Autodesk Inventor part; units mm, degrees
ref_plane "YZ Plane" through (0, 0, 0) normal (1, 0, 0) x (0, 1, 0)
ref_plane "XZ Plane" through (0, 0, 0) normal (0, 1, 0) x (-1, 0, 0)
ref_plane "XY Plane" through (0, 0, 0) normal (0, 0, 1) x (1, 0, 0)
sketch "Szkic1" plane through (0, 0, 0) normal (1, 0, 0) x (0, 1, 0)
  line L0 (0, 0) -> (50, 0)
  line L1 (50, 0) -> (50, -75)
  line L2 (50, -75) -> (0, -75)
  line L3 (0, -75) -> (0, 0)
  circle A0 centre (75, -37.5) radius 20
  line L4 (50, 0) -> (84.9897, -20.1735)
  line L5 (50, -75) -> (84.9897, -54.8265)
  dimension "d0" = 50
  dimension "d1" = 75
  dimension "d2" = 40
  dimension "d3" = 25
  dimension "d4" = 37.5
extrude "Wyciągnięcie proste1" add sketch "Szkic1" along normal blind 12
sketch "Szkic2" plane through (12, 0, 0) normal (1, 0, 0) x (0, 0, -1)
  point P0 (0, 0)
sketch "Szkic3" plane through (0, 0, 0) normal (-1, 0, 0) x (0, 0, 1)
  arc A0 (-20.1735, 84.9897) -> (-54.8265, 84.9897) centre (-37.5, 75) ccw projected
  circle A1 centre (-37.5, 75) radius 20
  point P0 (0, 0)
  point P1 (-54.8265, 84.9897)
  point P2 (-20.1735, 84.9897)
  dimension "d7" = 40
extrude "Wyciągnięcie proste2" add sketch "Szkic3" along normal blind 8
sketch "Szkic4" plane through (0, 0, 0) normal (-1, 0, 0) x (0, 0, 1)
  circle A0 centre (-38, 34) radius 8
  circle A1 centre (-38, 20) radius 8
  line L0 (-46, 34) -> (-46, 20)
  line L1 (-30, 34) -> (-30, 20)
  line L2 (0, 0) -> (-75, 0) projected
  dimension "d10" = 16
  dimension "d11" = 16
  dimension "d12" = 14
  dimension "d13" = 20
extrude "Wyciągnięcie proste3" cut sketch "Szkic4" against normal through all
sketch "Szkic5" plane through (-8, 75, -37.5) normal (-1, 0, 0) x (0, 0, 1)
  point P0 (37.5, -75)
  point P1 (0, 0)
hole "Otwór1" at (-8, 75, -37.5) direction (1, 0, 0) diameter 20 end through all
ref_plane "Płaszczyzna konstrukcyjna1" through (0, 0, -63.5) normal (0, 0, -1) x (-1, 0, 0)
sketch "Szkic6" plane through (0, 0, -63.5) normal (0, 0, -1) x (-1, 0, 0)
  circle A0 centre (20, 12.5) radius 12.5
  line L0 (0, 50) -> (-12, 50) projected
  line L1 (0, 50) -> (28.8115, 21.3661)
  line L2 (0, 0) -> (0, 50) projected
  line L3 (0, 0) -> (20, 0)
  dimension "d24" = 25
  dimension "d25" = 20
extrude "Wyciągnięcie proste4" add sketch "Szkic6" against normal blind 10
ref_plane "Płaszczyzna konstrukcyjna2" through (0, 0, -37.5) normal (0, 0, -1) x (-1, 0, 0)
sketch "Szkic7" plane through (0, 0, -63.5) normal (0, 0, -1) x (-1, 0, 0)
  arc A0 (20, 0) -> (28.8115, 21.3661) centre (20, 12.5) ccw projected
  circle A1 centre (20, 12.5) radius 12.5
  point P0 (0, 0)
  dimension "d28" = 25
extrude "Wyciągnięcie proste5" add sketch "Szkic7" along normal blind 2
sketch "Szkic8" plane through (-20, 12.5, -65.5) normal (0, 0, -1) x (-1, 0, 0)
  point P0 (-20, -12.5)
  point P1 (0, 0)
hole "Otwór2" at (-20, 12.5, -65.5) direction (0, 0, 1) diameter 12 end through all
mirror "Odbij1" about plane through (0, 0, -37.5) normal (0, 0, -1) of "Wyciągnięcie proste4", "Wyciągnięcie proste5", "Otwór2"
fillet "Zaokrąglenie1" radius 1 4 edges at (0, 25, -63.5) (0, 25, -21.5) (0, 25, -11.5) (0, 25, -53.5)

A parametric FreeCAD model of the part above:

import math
import FreeCAD as App
import Part
import Sketcher


def edges_at(feature, points):
    """Names of the edges that pass closest to the given points."""
    edges = feature.Shape.Edges
    near = lambda p: min(range(len(edges)), key=lambda i: edges[i].distToShape(Part.Vertex(*p))[0])
    return sorted({f"Edge{near(p) + 1}" for p in points})

doc = App.newDocument("Part")
params = doc.addObject("Spreadsheet::Sheet", "Params")
for row, (alias, value) in enumerate([
    ("sketch1_radius", "20 mm"),
    ("sketch1_width", "50 mm"),
    ("sketch1_height", "75 mm"),
    ("pad1_length", "12 mm"),
    ("sketch2_diameter", "40 mm"),
    ("pad2_length", "8 mm"),
    ("sketch3_radius", "8 mm"),
    ("sketch3_width", "14 mm"),
    ("sketch4_diameter", "20 mm"),
    ("hole_diameter", "20 mm"),
    ("sketch5_radius", "12.5 mm"),
    ("sketch5_width", "20 mm"),
    ("sketch5_height", "50 mm"),
    ("pad3_length", "10 mm"),
    ("sketch6_radius", "12.5 mm"),
    ("pad4_length", "2 mm"),
    ("sketch7_diameter", "12 mm"),
    ("hole2_diameter", "12 mm"),
    ("fillet_radius", "1 mm"),
], start=1):
    params.set(f"A{row}", alias)
    params.set(f"B{row}", "=" + value)
    params.setAlias(f"B{row}", alias)

body = doc.addObject("PartDesign::Body", "Body")

# Sketch on YZ plane
sketch1 = body.newObject("Sketcher::SketchObject", "Sketch")
sketch1.AttachmentSupport = (doc.getObject("YZ_Plane"), [""])
sketch1.MapMode = "FlatFace"
sketch1.addGeometry(Part.LineSegment(App.Vector(50, 0, 0), App.Vector(0, 0, 0)), False)
sketch1.addGeometry(Part.LineSegment(App.Vector(0, 0, 0), App.Vector(0, -75, 0)), False)
sketch1.addGeometry(Part.LineSegment(App.Vector(0, -75, 0), App.Vector(50, -75, 0)), False)
sketch1.addGeometry(Part.LineSegment(App.Vector(50, -75, 0), App.Vector(85, -55, 0)), False)
sketch1.addGeometry(Part.ArcOfCircle(Part.Circle(App.Vector(75, -38, 0), App.Vector(0, 0, 1), 20), math.radians(-60), math.radians(60)), False)
sketch1.addGeometry(Part.LineSegment(App.Vector(85, -20, 0), App.Vector(50, 0, 0)), False)
sketch1.addConstraint(Sketcher.Constraint("Coincident", 0, 2, 1, 1))
sketch1.addConstraint(Sketcher.Constraint("Coincident", 1, 2, 2, 1))
sketch1.addConstraint(Sketcher.Constraint("Coincident", 2, 2, 3, 1))
sketch1.addConstraint(Sketcher.Constraint("Tangent", 3, 2, 4, 1))
sketch1.addConstraint(Sketcher.Constraint("Tangent", 4, 2, 5, 1))
sketch1.addConstraint(Sketcher.Constraint("Coincident", 5, 2, 0, 1))
sketch1.addConstraint(Sketcher.Constraint("Horizontal", 0))
sketch1.addConstraint(Sketcher.Constraint("Vertical", 1))
sketch1.addConstraint(Sketcher.Constraint("Horizontal", 2))
sketch1.addConstraint(Sketcher.Constraint("Coincident", 0, 2, -1, 1))
sketch1.addConstraint(Sketcher.Constraint("Vertical", 3, 2, 4, 2))
sketch1.addConstraint(Sketcher.Constraint("Vertical", 2, 2, 5, 2))
sketch1.addConstraint(Sketcher.Constraint("Radius", 4, 20.0))
sketch1.addConstraint(Sketcher.Constraint("DistanceX", 0, 2, 0, 1, 50.0))
sketch1.addConstraint(Sketcher.Constraint("DistanceY", 1, 2, 1, 1, 75.0))
sketch1.addConstraint(Sketcher.Constraint("DistanceX", -1, 1, 4, 3, 75.0))
sketch1.setExpression("Constraints[12]", "Params.sketch1_radius")
sketch1.setExpression("Constraints[13]", "Params.sketch1_width")
sketch1.setExpression("Constraints[14]", "Params.sketch1_height")
pad1 = body.newObject("PartDesign::Pad", "Pad")
pad1.Profile = sketch1
pad1.setExpression("Length", "Params.pad1_length")

# Sketch on YZ plane
sketch2 = body.newObject("Sketcher::SketchObject", "Sketch001")
sketch2.AttachmentSupport = (doc.getObject("YZ_Plane"), [""])
sketch2.MapMode = "FlatFace"
sketch2.addGeometry(Part.Circle(App.Vector(75, -38, 0), App.Vector(0, 0, 1), 20), False)
sketch2.addConstraint(Sketcher.Constraint("Diameter", 0, 40.0))
sketch2.addConstraint(Sketcher.Constraint("DistanceX", -1, 1, 0, 3, 75.0))
sketch2.addConstraint(Sketcher.Constraint("DistanceY", 0, 3, -1, 1, 37.5))
sketch2.setExpression("Constraints[0]", "Params.sketch2_diameter")
pad2 = body.newObject("PartDesign::Pad", "Pad001")
pad2.Profile = sketch2
pad2.setExpression("Length", "Params.pad2_length")
pad2.Reversed = True

# Sketch on YZ plane
sketch3 = body.newObject("Sketcher::SketchObject", "Sketch002")
sketch3.AttachmentSupport = (doc.getObject("YZ_Plane"), [""])
sketch3.MapMode = "FlatFace"
sketch3.addGeometry(Part.ArcOfCircle(Part.Circle(App.Vector(34, -38, 0), App.Vector(0, 0, 1), 8), math.radians(-90), math.radians(90)), False)
sketch3.addGeometry(Part.LineSegment(App.Vector(34, -46, 0), App.Vector(20, -46, 0)), False)
sketch3.addGeometry(Part.ArcOfCircle(Part.Circle(App.Vector(20, -38, 0), App.Vector(0, 0, 1), 8), math.radians(90), math.radians(270)), False)
sketch3.addGeometry(Part.LineSegment(App.Vector(20, -30, 0), App.Vector(34, -30, 0)), False)
sketch3.addConstraint(Sketcher.Constraint("Tangent", 0, 1, 1, 1))
sketch3.addConstraint(Sketcher.Constraint("Tangent", 1, 2, 2, 2))
sketch3.addConstraint(Sketcher.Constraint("Tangent", 2, 1, 3, 1))
sketch3.addConstraint(Sketcher.Constraint("Tangent", 3, 2, 0, 2))
sketch3.addConstraint(Sketcher.Constraint("Horizontal", 1))
sketch3.addConstraint(Sketcher.Constraint("Horizontal", 3))
sketch3.addConstraint(Sketcher.Constraint("Radius", 0, 8.0))
sketch3.addConstraint(Sketcher.Constraint("DistanceX", 1, 2, 1, 1, 14.0))
sketch3.addConstraint(Sketcher.Constraint("DistanceX", -1, 1, 2, 3, 20.0))
sketch3.addConstraint(Sketcher.Constraint("DistanceY", 0, 3, -1, 1, 38.0))
sketch3.setExpression("Constraints[6]", "Params.sketch3_radius")
sketch3.setExpression("Constraints[7]", "Params.sketch3_width")
pocket1 = body.newObject("PartDesign::Pocket", "Pocket")
pocket1.Profile = sketch3
pocket1.Type = "ThroughAll"
pocket1.Reversed = True

# Sketch on YZ plane
sketch4 = body.newObject("Sketcher::SketchObject", "Sketch003")
sketch4.AttachmentSupport = (doc.getObject("YZ_Plane"), [""])
sketch4.MapMode = "FlatFace"
sketch4.AttachmentOffset = App.Placement(App.Vector(0, 0, -8), App.Rotation())
sketch4.addGeometry(Part.Circle(App.Vector(75, -38, 0), App.Vector(0, 0, 1), 10), False)
sketch4.addConstraint(Sketcher.Constraint("Diameter", 0, 20.0))
sketch4.addConstraint(Sketcher.Constraint("DistanceX", -1, 1, 0, 3, 75.0))
sketch4.addConstraint(Sketcher.Constraint("DistanceY", 0, 3, -1, 1, 37.5))
sketch4.setExpression("Constraints[0]", "Params.sketch4_diameter")
doc.recompute()
hole = body.newObject("PartDesign::Hole", "Hole")
hole.Profile = sketch4
hole.ThreadType = "None"
hole.setExpression("Diameter", "Params.hole_diameter")
hole.DepthType = "ThroughAll"
hole.Reversed = True

# Sketch on XY plane
sketch5 = body.newObject("Sketcher::SketchObject", "Sketch004")
sketch5.AttachmentSupport = (doc.getObject("XY_Plane"), [""])
sketch5.MapMode = "FlatFace"
sketch5.AttachmentOffset = App.Placement(App.Vector(0, 0, -63.5), App.Rotation())
sketch5.addGeometry(Part.ArcOfCircle(Part.Circle(App.Vector(-20, 12, 0), App.Vector(0, 0, 1), 12), math.radians(135), math.radians(270)), False)
sketch5.addGeometry(Part.LineSegment(App.Vector(-29, 21, 0), App.Vector(0, 50, 0)), False)
sketch5.addGeometry(Part.LineSegment(App.Vector(0, 50, 0), App.Vector(0, 0, 0)), False)
sketch5.addGeometry(Part.LineSegment(App.Vector(0, 0, 0), App.Vector(-20, 0, 0)), False)
sketch5.addConstraint(Sketcher.Constraint("Tangent", 0, 1, 1, 1))
sketch5.addConstraint(Sketcher.Constraint("Coincident", 1, 2, 2, 1))
sketch5.addConstraint(Sketcher.Constraint("Coincident", 2, 2, 3, 1))
sketch5.addConstraint(Sketcher.Constraint("Tangent", 3, 2, 0, 2))
sketch5.addConstraint(Sketcher.Constraint("Vertical", 2))
sketch5.addConstraint(Sketcher.Constraint("Horizontal", 3))
sketch5.addConstraint(Sketcher.Constraint("Coincident", 2, 2, -1, 1))
sketch5.addConstraint(Sketcher.Constraint("Radius", 0, 12.5))
sketch5.addConstraint(Sketcher.Constraint("DistanceX", 3, 2, 3, 1, 20.0))
sketch5.addConstraint(Sketcher.Constraint("DistanceY", 2, 2, 2, 1, 50.0))
sketch5.setExpression("Constraints[7]", "Params.sketch5_radius")
sketch5.setExpression("Constraints[8]", "Params.sketch5_width")
sketch5.setExpression("Constraints[9]", "Params.sketch5_height")
pad3 = body.newObject("PartDesign::Pad", "Pad002")
pad3.Profile = sketch5
pad3.setExpression("Length", "Params.pad3_length")

# Sketch on XY plane
sketch6 = body.newObject("Sketcher::SketchObject", "Sketch005")
sketch6.AttachmentSupport = (doc.getObject("XY_Plane"), [""])
sketch6.MapMode = "FlatFace"
sketch6.AttachmentOffset = App.Placement(App.Vector(0, 0, -63.5), App.Rotation())
sketch6.addGeometry(Part.ArcOfCircle(Part.Circle(App.Vector(-20, 12, 0), App.Vector(0, 0, 1), 12), math.radians(-90), math.radians(135)), False)
sketch6.addGeometry(Part.ArcOfCircle(Part.Circle(App.Vector(-20, 12, 0), App.Vector(0, 0, 1), 12), math.radians(135), math.radians(270)), False)
sketch6.addConstraint(Sketcher.Constraint("Tangent", 0, 1, 1, 2))
sketch6.addConstraint(Sketcher.Constraint("Coincident", 1, 1, 0, 2))
sketch6.addConstraint(Sketcher.Constraint("PointOnObject", 0, 1, -1))
sketch6.addConstraint(Sketcher.Constraint("Vertical", 1, 3, 0, 1))
sketch6.addConstraint(Sketcher.Constraint("Radius", 0, 12.5))
sketch6.addConstraint(Sketcher.Constraint("DistanceX", 0, 3, -1, 1, 20.0))
sketch6.addConstraint(Sketcher.Constraint("DistanceY", -1, 1, 1, 1, 21.366))
sketch6.setExpression("Constraints[4]", "Params.sketch6_radius")
pad4 = body.newObject("PartDesign::Pad", "Pad003")
pad4.Profile = sketch6
pad4.setExpression("Length", "Params.pad4_length")
pad4.Reversed = True

# Sketch on XY plane
sketch7 = body.newObject("Sketcher::SketchObject", "Sketch006")
sketch7.AttachmentSupport = (doc.getObject("XY_Plane"), [""])
sketch7.MapMode = "FlatFace"
sketch7.AttachmentOffset = App.Placement(App.Vector(0, 0, -65.5), App.Rotation())
sketch7.addGeometry(Part.Circle(App.Vector(-20, 12, 0), App.Vector(0, 0, 1), 6), False)
sketch7.addConstraint(Sketcher.Constraint("Diameter", 0, 12.0))
sketch7.addConstraint(Sketcher.Constraint("DistanceX", 0, 3, -1, 1, 20.0))
sketch7.addConstraint(Sketcher.Constraint("DistanceY", -1, 1, 0, 3, 12.5))
sketch7.setExpression("Constraints[0]", "Params.sketch7_diameter")
doc.recompute()
hole2 = body.newObject("PartDesign::Hole", "Hole001")
hole2.Profile = sketch7
hole2.ThreadType = "None"
hole2.setExpression("Diameter", "Params.hole2_diameter")
hole2.DepthType = "ThroughAll"
hole2.Reversed = True
doc.recompute()

datumplane = body.newObject("PartDesign::Plane", "DatumPlane")
datumplane.AttachmentSupport = (doc.getObject("XY_Plane"), [""])
datumplane.MapMode = "FlatFace"
datumplane.AttachmentOffset = App.Placement(App.Vector(0, 0, -37.5), App.Rotation())
mirrored = body.newObject("PartDesign::Mirrored", "Mirrored")
mirrored.Originals = [pad3, pad4, hole2]
mirrored.MirrorPlane = (datumplane, [""])
body.Tip = mirrored
doc.recompute()

fillet = body.newObject("PartDesign::Fillet", "Fillet")
fillet.Base = (mirrored, edges_at(mirrored, [
    (0, 25, -63.5),
    (0, 25, -21.5),
    (0, 25, -11.5),
    (0, 25, -53.5),
]))
fillet.setExpression("Radius", "Params.fillet_radius")

doc.recompute()
